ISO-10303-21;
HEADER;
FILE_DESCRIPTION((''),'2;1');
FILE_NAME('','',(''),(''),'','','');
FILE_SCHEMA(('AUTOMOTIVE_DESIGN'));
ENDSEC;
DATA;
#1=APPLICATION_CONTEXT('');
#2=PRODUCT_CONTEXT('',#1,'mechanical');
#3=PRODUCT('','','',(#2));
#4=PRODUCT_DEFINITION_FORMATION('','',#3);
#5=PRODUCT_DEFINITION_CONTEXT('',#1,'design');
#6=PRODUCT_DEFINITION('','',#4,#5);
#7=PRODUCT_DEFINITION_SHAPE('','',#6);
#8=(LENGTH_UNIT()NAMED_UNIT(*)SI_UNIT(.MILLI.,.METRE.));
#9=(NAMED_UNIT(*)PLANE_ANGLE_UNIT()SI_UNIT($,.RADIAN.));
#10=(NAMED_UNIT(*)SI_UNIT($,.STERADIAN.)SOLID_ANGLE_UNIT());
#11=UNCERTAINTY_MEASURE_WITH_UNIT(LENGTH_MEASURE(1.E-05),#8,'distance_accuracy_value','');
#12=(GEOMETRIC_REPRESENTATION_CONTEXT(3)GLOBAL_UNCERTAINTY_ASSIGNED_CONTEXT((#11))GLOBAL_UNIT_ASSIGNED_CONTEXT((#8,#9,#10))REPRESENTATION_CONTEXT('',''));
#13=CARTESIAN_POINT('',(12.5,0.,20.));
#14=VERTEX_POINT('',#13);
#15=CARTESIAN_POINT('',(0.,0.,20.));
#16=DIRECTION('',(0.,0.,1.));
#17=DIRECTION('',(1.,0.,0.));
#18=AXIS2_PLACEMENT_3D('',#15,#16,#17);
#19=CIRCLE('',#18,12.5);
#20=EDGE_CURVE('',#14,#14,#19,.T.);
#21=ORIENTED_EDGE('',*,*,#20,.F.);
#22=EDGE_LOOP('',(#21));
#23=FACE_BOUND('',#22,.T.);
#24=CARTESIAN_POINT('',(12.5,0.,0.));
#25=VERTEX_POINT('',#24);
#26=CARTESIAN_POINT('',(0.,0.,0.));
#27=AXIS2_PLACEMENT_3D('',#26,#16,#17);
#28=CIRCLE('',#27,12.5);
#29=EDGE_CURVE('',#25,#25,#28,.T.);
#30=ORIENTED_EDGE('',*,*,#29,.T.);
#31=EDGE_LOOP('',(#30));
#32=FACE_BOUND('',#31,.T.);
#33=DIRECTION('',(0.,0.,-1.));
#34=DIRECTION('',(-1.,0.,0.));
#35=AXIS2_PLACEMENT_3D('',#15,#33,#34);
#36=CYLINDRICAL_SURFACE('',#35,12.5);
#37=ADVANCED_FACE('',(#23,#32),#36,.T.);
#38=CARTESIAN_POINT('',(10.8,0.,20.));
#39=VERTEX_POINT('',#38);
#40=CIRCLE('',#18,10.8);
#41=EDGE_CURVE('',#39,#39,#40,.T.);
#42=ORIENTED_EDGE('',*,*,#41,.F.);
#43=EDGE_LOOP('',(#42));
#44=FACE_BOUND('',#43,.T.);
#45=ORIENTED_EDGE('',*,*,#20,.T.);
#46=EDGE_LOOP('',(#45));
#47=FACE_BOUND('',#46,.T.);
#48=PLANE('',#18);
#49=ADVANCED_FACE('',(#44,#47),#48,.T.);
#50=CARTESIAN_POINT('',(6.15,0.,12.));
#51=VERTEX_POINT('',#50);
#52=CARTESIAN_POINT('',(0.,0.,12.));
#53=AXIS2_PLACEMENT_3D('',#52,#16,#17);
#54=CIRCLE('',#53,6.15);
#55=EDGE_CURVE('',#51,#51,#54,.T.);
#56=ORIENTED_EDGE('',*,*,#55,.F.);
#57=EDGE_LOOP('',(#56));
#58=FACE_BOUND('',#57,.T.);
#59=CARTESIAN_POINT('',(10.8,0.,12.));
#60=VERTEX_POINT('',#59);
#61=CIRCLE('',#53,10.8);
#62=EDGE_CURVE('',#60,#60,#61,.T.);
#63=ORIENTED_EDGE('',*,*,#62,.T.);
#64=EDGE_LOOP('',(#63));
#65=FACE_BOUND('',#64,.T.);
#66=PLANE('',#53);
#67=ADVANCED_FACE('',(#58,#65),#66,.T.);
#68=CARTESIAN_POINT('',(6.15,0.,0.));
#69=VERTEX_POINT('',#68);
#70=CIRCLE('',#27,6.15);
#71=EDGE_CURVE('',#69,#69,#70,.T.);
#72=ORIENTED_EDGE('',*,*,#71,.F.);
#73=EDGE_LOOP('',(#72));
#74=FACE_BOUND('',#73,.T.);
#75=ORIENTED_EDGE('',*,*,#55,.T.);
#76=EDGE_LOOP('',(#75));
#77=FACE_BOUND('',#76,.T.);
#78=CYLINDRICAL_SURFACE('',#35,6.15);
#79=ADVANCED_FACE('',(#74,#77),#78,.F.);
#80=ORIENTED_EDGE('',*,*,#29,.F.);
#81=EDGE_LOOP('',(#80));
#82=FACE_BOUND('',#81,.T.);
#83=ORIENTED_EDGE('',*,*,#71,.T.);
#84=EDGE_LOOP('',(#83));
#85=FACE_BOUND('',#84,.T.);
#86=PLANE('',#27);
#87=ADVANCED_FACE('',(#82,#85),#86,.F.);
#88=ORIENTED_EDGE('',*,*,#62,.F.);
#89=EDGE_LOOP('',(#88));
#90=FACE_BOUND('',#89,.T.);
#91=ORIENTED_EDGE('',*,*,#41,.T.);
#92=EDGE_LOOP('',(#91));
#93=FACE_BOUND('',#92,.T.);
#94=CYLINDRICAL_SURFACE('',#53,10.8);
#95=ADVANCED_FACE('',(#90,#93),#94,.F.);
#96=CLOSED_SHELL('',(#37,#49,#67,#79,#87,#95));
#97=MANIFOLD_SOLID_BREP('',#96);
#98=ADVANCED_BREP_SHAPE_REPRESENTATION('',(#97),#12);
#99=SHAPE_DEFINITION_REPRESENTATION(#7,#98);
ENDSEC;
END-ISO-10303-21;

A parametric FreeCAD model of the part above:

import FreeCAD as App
import Part
import Sketcher
Q = App.Units.Quantity

doc = App.newDocument("Part")
body = doc.addObject("PartDesign::Body", "Body")

# Sketch on XY plane
sketch1 = doc.addObject("Sketcher::SketchObject", "Sketch")
body.addObject(sketch1)
sketch1.AttachmentSupport = (doc.XY_Plane, [""])
sketch1.MapMode = "FlatFace"
sketch1.addGeometry([
    Part.Circle(App.Vector(0, 0, 0), App.Vector(0, 0, 1), 12),
    Part.Circle(App.Vector(0, 0, 0), App.Vector(0, 0, 1), 6),
], False)
sketch1.addConstraint([
    Sketcher.Constraint("Coincident", 0, 3, -1, 1),
    Sketcher.Constraint("Coincident", 1, 3, -1, 1),
    Sketcher.Constraint("Diameter", 0, Q("25 mm")),
    Sketcher.Constraint("Diameter", 1, Q("12.3 mm")),
])
pad1 = doc.addObject("PartDesign::Pad", "Pad")
body.addObject(pad1)
pad1.Profile = sketch1
pad1.Length = 20

# Sketch on XY plane
sketch2 = doc.addObject("Sketcher::SketchObject", "Sketch001")
body.addObject(sketch2)
sketch2.AttachmentSupport = (doc.XY_Plane, [""])
sketch2.MapMode = "FlatFace"
sketch2.AttachmentOffset = App.Placement(App.Vector(0, 0, 20), App.Rotation())
sketch2.addGeometry(Part.Circle(App.Vector(0, 0, 0), App.Vector(0, 0, 1), 11), False)
sketch2.addConstraint([
    Sketcher.Constraint("Coincident", 0, 3, -1, 1),
    Sketcher.Constraint("Diameter", 0, Q("21.6 mm")),
])
pocket1 = doc.addObject("PartDesign::Pocket", "Pocket")
body.addObject(pocket1)
pocket1.Profile = sketch2
pocket1.Length = 8

doc.recompute()
